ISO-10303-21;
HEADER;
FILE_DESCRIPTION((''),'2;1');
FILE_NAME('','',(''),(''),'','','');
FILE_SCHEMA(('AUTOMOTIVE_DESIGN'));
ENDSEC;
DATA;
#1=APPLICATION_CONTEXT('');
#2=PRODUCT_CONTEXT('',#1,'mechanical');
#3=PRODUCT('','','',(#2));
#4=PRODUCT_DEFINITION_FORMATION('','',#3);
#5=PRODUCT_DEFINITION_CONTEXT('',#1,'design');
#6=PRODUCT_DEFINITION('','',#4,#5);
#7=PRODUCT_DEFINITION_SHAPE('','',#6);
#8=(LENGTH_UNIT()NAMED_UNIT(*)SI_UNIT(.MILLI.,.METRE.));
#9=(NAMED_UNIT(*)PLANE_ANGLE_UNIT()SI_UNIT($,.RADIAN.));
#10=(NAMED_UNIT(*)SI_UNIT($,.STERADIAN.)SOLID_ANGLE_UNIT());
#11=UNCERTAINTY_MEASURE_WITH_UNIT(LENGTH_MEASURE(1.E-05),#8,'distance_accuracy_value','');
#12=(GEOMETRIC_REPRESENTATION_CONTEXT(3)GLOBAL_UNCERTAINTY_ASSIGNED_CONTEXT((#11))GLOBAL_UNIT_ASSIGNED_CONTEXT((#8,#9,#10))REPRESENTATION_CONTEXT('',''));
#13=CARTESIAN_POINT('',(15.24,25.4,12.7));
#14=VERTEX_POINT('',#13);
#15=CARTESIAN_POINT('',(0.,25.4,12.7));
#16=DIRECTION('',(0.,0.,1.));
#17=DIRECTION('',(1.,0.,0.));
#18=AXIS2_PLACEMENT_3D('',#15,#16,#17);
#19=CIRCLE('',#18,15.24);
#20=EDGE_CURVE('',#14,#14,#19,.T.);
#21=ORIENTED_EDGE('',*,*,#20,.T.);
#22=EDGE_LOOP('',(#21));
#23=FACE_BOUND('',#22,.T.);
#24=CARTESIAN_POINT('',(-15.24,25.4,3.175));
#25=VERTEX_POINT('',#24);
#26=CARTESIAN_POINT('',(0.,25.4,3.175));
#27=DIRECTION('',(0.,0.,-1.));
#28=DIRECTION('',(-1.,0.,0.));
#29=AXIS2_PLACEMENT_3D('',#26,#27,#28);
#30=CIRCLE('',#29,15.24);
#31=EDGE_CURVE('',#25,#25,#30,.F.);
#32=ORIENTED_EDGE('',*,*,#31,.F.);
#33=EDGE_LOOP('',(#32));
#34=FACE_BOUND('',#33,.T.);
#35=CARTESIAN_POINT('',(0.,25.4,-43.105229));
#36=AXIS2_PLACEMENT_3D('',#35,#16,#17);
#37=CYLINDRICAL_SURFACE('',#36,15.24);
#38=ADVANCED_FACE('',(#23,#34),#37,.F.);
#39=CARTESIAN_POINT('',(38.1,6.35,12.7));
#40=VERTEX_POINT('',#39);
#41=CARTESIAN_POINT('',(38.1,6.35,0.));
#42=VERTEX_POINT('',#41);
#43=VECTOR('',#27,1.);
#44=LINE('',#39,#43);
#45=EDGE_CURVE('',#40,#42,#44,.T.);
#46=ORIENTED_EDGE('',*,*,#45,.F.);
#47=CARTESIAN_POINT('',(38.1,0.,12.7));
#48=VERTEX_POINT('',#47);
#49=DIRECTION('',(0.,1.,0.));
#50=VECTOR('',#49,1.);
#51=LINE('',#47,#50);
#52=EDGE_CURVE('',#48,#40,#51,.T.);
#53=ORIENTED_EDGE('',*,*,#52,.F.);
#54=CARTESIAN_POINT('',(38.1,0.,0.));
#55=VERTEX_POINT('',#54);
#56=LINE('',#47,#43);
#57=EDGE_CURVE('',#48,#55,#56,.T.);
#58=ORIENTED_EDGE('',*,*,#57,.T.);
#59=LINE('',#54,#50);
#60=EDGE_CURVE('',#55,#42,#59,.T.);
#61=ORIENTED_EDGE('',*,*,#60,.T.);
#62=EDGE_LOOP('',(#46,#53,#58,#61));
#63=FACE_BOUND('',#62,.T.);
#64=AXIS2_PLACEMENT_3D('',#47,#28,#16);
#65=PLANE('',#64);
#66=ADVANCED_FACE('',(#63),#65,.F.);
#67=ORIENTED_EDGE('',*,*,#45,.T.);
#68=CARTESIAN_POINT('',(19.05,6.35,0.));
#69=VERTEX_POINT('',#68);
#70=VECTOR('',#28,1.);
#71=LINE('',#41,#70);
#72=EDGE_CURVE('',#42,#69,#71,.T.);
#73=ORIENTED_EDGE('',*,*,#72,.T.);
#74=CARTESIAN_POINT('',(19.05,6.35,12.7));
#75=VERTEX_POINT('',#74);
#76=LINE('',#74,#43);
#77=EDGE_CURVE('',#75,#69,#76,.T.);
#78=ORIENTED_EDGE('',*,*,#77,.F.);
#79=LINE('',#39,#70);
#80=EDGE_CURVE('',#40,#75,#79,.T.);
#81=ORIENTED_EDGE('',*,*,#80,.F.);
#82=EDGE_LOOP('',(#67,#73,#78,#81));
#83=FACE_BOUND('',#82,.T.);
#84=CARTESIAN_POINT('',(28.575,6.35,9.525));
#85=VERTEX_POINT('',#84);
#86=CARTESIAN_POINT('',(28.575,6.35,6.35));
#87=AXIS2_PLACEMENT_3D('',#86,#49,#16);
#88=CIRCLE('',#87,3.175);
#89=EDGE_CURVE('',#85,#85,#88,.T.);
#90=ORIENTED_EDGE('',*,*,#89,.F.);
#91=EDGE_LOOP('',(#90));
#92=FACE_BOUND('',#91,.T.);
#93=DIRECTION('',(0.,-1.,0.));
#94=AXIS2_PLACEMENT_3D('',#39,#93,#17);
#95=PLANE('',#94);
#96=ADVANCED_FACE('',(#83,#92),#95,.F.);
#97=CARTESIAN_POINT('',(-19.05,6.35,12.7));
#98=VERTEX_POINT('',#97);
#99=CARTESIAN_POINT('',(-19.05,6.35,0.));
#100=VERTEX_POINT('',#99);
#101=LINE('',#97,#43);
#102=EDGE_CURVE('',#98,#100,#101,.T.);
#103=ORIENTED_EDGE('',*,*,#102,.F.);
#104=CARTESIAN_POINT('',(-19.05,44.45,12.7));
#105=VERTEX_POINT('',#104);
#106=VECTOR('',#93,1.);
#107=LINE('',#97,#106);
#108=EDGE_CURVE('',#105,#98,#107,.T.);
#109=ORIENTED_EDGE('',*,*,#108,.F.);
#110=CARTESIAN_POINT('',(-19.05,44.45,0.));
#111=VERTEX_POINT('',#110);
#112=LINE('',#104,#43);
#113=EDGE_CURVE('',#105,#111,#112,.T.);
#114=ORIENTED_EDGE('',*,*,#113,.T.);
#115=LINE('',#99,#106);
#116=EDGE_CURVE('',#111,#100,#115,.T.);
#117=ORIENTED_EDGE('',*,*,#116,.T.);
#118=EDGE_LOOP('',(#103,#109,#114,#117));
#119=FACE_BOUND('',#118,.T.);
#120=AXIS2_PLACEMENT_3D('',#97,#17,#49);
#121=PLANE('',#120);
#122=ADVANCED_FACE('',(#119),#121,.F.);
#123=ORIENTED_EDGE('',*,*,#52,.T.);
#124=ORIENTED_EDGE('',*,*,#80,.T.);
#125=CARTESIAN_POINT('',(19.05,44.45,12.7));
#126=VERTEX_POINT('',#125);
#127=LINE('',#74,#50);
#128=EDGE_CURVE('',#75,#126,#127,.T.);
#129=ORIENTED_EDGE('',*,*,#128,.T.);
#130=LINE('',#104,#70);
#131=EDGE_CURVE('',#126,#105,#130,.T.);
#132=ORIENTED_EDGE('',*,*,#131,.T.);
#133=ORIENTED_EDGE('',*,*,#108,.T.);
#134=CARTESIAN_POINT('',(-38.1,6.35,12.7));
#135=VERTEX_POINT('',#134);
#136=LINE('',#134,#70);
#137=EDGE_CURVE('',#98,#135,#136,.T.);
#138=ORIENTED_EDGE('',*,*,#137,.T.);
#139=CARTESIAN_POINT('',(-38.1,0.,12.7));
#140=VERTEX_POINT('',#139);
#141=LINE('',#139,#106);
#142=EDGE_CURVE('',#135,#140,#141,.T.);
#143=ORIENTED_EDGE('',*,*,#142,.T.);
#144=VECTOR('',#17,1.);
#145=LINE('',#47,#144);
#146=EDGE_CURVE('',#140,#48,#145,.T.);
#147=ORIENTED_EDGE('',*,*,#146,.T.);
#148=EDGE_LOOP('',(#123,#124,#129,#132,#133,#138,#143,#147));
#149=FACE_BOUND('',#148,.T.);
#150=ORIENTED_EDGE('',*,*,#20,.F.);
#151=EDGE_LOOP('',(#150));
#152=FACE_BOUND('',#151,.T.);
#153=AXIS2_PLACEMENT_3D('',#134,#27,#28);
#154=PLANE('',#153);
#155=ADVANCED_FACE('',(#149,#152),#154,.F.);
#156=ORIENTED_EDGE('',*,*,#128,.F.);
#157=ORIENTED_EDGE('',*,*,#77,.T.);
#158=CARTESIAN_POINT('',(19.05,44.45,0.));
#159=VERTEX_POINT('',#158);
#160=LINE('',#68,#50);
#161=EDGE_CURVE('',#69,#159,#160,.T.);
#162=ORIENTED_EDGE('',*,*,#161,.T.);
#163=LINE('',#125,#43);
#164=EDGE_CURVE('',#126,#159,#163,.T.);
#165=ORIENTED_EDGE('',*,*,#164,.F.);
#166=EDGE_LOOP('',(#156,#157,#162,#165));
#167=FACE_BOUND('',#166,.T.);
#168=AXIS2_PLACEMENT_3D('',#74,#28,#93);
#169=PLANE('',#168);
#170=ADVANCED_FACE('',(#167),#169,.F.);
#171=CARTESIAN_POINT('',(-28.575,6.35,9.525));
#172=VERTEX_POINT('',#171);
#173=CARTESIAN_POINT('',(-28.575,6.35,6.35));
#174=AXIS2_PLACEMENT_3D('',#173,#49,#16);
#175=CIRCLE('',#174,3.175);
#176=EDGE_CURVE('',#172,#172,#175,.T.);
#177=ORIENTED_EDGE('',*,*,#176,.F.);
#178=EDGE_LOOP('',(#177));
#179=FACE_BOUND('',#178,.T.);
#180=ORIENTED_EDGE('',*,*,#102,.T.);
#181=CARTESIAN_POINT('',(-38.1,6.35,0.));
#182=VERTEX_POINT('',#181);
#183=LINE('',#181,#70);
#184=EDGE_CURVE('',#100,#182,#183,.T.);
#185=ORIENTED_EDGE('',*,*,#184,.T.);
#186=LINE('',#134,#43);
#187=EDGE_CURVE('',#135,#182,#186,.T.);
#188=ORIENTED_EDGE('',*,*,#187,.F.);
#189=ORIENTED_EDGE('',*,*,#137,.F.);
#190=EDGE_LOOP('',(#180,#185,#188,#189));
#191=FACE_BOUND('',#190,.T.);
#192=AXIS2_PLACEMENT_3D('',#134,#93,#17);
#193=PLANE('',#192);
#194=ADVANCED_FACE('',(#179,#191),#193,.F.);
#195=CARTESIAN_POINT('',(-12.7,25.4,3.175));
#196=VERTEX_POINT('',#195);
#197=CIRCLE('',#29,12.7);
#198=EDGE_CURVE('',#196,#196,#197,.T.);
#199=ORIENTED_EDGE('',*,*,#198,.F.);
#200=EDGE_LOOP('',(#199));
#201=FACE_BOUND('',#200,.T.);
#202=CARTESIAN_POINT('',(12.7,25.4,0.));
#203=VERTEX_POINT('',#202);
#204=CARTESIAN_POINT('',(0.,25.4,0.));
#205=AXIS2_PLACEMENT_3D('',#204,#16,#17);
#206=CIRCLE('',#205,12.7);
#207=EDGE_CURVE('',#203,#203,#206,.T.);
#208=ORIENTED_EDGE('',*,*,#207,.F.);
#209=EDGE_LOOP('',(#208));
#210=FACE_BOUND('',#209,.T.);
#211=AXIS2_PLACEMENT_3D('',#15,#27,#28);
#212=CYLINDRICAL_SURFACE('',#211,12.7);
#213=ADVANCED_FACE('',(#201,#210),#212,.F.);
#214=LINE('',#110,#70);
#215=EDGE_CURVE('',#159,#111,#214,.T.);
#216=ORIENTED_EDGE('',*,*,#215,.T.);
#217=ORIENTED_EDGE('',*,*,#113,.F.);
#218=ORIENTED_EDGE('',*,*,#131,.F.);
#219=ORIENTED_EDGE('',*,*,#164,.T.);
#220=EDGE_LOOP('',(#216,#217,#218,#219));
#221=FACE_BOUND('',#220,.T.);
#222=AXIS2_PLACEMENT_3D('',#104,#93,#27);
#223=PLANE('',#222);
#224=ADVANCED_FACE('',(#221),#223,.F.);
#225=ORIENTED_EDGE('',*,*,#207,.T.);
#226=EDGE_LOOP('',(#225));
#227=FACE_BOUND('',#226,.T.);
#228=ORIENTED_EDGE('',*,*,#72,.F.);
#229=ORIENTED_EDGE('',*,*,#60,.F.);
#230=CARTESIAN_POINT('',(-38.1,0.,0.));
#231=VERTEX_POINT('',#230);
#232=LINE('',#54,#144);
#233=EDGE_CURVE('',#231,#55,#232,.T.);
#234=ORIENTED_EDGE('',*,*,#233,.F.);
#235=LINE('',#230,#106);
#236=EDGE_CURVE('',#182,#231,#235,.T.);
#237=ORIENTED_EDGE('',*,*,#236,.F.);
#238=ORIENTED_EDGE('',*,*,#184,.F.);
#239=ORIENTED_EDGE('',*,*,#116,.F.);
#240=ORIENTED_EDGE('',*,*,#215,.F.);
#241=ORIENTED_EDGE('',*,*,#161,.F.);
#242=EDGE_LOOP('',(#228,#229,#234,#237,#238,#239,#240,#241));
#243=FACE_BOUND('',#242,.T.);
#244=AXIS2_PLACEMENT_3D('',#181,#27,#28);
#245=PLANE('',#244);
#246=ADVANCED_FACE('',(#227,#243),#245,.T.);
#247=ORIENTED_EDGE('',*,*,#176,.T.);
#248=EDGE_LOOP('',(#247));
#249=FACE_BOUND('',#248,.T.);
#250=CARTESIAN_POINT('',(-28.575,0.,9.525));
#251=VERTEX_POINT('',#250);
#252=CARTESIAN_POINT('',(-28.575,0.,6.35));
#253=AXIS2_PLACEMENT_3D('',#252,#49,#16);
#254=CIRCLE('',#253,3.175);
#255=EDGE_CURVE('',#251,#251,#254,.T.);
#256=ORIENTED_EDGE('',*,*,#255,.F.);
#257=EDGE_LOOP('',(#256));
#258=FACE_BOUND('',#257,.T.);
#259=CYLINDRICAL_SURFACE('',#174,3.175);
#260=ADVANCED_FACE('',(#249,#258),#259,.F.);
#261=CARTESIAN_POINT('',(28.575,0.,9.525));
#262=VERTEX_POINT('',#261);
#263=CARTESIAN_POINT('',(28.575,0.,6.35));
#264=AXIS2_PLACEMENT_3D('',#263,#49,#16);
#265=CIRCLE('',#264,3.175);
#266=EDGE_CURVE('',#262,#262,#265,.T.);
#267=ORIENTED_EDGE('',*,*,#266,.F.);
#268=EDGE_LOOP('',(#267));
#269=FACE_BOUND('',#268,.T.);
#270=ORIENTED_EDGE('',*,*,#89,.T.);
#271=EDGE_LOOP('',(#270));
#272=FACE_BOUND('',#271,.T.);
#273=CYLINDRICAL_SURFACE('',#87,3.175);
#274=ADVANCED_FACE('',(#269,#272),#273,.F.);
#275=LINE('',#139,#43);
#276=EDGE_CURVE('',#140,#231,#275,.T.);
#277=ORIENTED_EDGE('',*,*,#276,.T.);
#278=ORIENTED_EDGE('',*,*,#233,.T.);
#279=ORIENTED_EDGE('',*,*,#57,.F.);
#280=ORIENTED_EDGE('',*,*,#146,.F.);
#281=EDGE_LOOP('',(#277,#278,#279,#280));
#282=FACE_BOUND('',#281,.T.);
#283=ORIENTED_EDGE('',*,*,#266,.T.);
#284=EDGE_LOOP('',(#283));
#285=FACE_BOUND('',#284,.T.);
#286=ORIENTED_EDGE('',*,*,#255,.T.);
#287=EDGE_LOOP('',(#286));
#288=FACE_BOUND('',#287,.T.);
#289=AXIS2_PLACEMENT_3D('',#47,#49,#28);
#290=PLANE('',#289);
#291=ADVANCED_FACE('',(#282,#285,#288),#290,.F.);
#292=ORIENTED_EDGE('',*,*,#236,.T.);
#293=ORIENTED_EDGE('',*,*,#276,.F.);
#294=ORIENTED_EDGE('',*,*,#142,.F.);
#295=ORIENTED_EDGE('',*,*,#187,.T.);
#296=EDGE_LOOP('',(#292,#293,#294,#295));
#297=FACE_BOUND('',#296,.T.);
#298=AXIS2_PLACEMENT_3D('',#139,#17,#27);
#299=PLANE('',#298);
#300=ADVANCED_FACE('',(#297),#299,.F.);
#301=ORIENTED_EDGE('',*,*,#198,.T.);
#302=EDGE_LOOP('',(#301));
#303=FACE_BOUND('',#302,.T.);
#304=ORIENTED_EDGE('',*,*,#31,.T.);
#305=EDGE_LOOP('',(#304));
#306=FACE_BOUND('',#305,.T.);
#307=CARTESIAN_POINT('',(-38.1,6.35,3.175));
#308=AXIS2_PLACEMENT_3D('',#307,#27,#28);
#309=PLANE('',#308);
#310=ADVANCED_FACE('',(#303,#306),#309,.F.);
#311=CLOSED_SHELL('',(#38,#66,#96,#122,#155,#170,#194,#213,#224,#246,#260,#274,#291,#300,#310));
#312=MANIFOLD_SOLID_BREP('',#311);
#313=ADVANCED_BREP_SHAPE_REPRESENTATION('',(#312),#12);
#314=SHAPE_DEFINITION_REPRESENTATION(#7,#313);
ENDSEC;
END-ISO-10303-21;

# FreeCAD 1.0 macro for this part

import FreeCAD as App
import Part
import Sketcher

V = App.Vector
Q = App.Units.Quantity

doc = App.newDocument("Part")
body = doc.addObject("PartDesign::Body", "Body")

# Sketch on XY plane
sketch1 = doc.addObject("Sketcher::SketchObject", "Sketch")
body.addObject(sketch1)
sketch1.AttachmentSupport = (doc.XY_Plane, [""])
sketch1.MapMode = "FlatFace"
sketch1.addGeometry(Part.LineSegment(V(-38, 0, 0), V(38, 0, 0)), False)
sketch1.addGeometry(Part.LineSegment(V(38, 0, 0), V(38, 6, 0)), False)
sketch1.addGeometry(Part.LineSegment(V(38, 6, 0), V(19, 6, 0)), False)
sketch1.addGeometry(Part.LineSegment(V(19, 6, 0), V(19, 44, 0)), False)
sketch1.addGeometry(Part.LineSegment(V(19, 44, 0), V(-19, 44, 0)), False)
sketch1.addGeometry(Part.LineSegment(V(-19, 44, 0), V(-19, 6, 0)), False)
sketch1.addGeometry(Part.LineSegment(V(-19, 6, 0), V(-38, 6, 0)), False)
sketch1.addGeometry(Part.LineSegment(V(-38, 6, 0), V(-38, 0, 0)), False)
sketch1.addGeometry(Part.Circle(V(0, 25, 0), V(0, 0, 1), 13), False)
sketch1.addConstraint(Sketcher.Constraint("Coincident", 0, 2, 1, 1))
sketch1.addConstraint(Sketcher.Constraint("Coincident", 1, 2, 2, 1))
sketch1.addConstraint(Sketcher.Constraint("Coincident", 2, 2, 3, 1))
sketch1.addConstraint(Sketcher.Constraint("Coincident", 3, 2, 4, 1))
sketch1.addConstraint(Sketcher.Constraint("Coincident", 4, 2, 5, 1))
sketch1.addConstraint(Sketcher.Constraint("Coincident", 5, 2, 6, 1))
sketch1.addConstraint(Sketcher.Constraint("Coincident", 6, 2, 7, 1))
sketch1.addConstraint(Sketcher.Constraint("Coincident", 7, 2, 0, 1))
sketch1.addConstraint(Sketcher.Constraint("Horizontal", 0))
sketch1.addConstraint(Sketcher.Constraint("Vertical", 1))
sketch1.addConstraint(Sketcher.Constraint("Horizontal", 2))
sketch1.addConstraint(Sketcher.Constraint("Vertical", 3))
sketch1.addConstraint(Sketcher.Constraint("Horizontal", 4))
sketch1.addConstraint(Sketcher.Constraint("Vertical", 5))
sketch1.addConstraint(Sketcher.Constraint("Horizontal", 6))
sketch1.addConstraint(Sketcher.Constraint("Vertical", 7))
sketch1.addConstraint(Sketcher.Constraint("Symmetric", 0, 2, 7, 2, -1, 1))
sketch1.addConstraint(Sketcher.Constraint("Symmetric", 2, 2, 5, 2, -2))
sketch1.addConstraint(Sketcher.Constraint("PointOnObject", 8, 3, -2))
sketch1.addConstraint(Sketcher.Constraint("Equal", 4, 3))
sketch1.addConstraint(Sketcher.Constraint("Diameter", 8, Q("1 in")))
sketch1.addConstraint(Sketcher.Constraint("DistanceX", 0, 1, 0, 2, Q("3 in")))
sketch1.addConstraint(Sketcher.Constraint("DistanceX", 4, 2, 4, 1, Q("1.5 in")))
sketch1.addConstraint(Sketcher.Constraint("DistanceY", -1, 1, 8, 3, Q("1 in")))
sketch1.addConstraint(Sketcher.Constraint("DistanceY", 1, 1, 1, 2, Q("0.25 in")))
pad1 = doc.addObject("PartDesign::Pad", "Pad")
body.addObject(pad1)
pad1.Profile = sketch1
pad1.Length = Q("0.5 in")

# Sketch on XY plane
sketch2 = doc.addObject("Sketcher::SketchObject", "Sketch001")
body.addObject(sketch2)
sketch2.AttachmentSupport = (doc.XY_Plane, [""])
sketch2.MapMode = "FlatFace"
sketch2.AttachmentOffset = App.Placement(V(0, 0, 0.5 * 25.4), App.Rotation())
sketch2.addGeometry(Part.Circle(V(0, 25, 0), V(0, 0, 1), 15), False)
sketch2.addConstraint(Sketcher.Constraint("PointOnObject", 0, 3, -2))
sketch2.addConstraint(Sketcher.Constraint("Diameter", 0, Q("1.2 in")))
sketch2.addConstraint(Sketcher.Constraint("DistanceY", -1, 1, 0, 3, Q("1 in")))
pocket1 = doc.addObject("PartDesign::Pocket", "Pocket")
body.addObject(pocket1)
pocket1.Profile = sketch2
pocket1.Length = Q("0.375 in")

# Sketch on XZ plane
sketch3 = doc.addObject("Sketcher::SketchObject", "Sketch002")
body.addObject(sketch3)
sketch3.AttachmentSupport = (doc.XZ_Plane, [""])
sketch3.MapMode = "FlatFace"
sketch3.AttachmentOffset = App.Placement(V(0, 0, -0.25 * 25.4), App.Rotation())
sketch3.addGeometry(Part.Circle(V(-28.6, 6.3, 0), V(0, 0, 1), 3.2), False)
sketch3.addGeometry(Part.Circle(V(28.6, 6.3, 0), V(0, 0, 1), 3.2), False)
sketch3.addConstraint(Sketcher.Constraint("Equal", 0, 1))
sketch3.addConstraint(Sketcher.Constraint("Symmetric", 0, 3, 1, 3, -2))
sketch3.addConstraint(Sketcher.Constraint("Diameter", 0, Q("0.25 in")))
sketch3.addConstraint(Sketcher.Constraint("DistanceY", -1, 1, 0, 3, Q("0.25 in")))
sketch3.addConstraint(Sketcher.Constraint("DistanceX", 0, 3, 1, 3, Q("2.25 in")))
doc.recompute()
hole = doc.addObject("PartDesign::Hole", "Hole")
body.addObject(hole)
hole.Profile = sketch3
hole.ThreadType = "None"
hole.Diameter = Q("0.25 in")
hole.DepthType = "ThroughAll"
hole.Reversed = True

doc.recompute()
